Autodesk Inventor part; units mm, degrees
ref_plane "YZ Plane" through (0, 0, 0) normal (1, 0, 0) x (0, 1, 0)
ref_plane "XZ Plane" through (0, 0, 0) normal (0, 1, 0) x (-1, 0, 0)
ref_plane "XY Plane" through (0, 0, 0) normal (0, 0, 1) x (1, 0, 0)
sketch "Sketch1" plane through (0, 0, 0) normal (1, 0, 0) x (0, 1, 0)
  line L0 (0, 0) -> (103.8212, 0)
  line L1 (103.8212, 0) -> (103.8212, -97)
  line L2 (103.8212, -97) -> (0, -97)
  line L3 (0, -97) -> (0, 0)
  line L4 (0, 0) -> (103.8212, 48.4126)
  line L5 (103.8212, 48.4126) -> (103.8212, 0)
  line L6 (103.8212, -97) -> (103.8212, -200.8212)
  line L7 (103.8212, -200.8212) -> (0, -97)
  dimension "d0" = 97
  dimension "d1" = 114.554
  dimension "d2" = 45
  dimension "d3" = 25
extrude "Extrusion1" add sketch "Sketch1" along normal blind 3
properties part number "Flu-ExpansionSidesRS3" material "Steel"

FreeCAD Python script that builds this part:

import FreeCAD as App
import Part
import Sketcher
Q = App.Units.Quantity


def add_polygon(sketch, points):
    """Adds a closed chain of lines whose ends are joined by coincident constraints."""
    first, n = sketch.GeometryCount, len(points)
    for a, b in zip(points, points[1:] + points[:1]):
        sketch.addGeometry(Part.LineSegment(App.Vector(*a, 0), App.Vector(*b, 0)), False)
    for i in range(n):
        sketch.addConstraint(Sketcher.Constraint("Coincident", first + i, 2, first + (i + 1) % n, 1))

doc = App.newDocument("Part")
body = doc.addObject("PartDesign::Body", "Body")

# Sketch on YZ plane
sketch1 = doc.addObject("Sketcher::SketchObject", "Sketch")
body.addObject(sketch1)
sketch1.AttachmentSupport = (doc.YZ_Plane, [""])
sketch1.MapMode = "FlatFace"
add_polygon(sketch1, [(104, 48), (0, 0), (0, -97), (104, -201)])  # lines 0-3
sketch1.addConstraint([
    Sketcher.Constraint("Vertical", 1),
    Sketcher.Constraint("Vertical", 3),
    Sketcher.Constraint("Coincident", 0, 2, -1, 1),
    Sketcher.Constraint("Angle", 2, Q("-45 deg")),
    Sketcher.Constraint("Distance", 0, Q("4.51 in")),
    Sketcher.Constraint("DistanceY", 1, 2, 1, 1, Q("3.8189 in")),
    Sketcher.Constraint("Angle", 0, Q("-155 deg")),
])
pad1 = doc.addObject("PartDesign::Pad", "Pad")
body.addObject(pad1)
pad1.Profile = sketch1
pad1.Length = Q("0.1181102 in")

doc.recompute()
